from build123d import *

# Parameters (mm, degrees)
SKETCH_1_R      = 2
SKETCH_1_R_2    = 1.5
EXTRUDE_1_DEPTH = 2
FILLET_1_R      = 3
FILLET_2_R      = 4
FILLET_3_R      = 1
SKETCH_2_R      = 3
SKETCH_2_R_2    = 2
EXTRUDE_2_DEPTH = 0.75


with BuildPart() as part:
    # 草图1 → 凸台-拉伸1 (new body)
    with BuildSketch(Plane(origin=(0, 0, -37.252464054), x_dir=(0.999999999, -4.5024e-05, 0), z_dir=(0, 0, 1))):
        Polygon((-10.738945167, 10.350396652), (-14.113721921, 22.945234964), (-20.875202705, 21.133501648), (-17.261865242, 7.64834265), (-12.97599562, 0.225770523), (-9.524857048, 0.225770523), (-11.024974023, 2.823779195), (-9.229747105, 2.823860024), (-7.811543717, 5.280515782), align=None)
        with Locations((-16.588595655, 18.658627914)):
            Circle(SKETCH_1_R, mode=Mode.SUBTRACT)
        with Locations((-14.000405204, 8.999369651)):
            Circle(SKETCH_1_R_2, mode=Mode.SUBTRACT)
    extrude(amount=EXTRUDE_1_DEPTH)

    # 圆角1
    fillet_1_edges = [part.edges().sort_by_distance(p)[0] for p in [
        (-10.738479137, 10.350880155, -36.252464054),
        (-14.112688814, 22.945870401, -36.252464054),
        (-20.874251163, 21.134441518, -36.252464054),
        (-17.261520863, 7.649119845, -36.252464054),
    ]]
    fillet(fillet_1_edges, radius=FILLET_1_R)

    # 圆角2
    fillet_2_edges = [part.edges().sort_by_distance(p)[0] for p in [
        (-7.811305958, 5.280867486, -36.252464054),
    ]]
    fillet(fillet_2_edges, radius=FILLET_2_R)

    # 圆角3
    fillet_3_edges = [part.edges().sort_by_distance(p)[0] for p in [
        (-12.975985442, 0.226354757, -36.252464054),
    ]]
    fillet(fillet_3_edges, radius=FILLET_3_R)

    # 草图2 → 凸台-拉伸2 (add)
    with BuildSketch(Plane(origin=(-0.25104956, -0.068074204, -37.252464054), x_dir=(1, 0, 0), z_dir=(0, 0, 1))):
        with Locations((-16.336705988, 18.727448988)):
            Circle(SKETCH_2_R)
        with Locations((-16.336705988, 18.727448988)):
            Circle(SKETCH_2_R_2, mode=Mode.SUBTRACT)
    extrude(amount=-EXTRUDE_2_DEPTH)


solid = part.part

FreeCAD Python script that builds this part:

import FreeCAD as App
import Part
import Sketcher

V = App.Vector
Q = App.Units.Quantity


def edges_at(feature, points):
    """Names of the edges that pass closest to the given points."""
    edges = feature.Shape.Edges
    near = lambda p: min(range(len(edges)), key=lambda i: edges[i].distToShape(Part.Vertex(*p))[0])
    return sorted({f"Edge{near(p) + 1}" for p in points})


def add_polygon(sketch, points):
    """Adds a closed chain of lines whose ends are joined by coincident constraints."""
    first, n = sketch.GeometryCount, len(points)
    for a, b in zip(points, points[1:] + points[:1]):
        sketch.addGeometry(Part.LineSegment(App.Vector(*a, 0), App.Vector(*b, 0)), False)
    for i in range(n):
        sketch.addConstraint(Sketcher.Constraint("Coincident", first + i, 2, first + (i + 1) % n, 1))

doc = App.newDocument("Part")
params = doc.addObject("Spreadsheet::Sheet", "Params")
for row, (alias, value) in enumerate([
    ("sketch1_diameter", "3 mm"),
    ("sketch1_diameter2", "4 mm"),
    ("sketch1_length", "7 mm"),
    ("sketch1_length2", "3 mm"),
    ("pad1_length", "2 mm"),
    ("fillet_radius", "3 mm"),
    ("fillet2_radius", "4 mm"),
    ("fillet3_radius", "1 mm"),
    ("sketch2_diameter", "6 mm"),
    ("sketch2_diameter2", "4 mm"),
    ("pad2_length", "0.75 mm"),
], start=1):
    params.set(f"A{row}", alias)
    params.set(f"B{row}", "=" + value)
    params.setAlias(f"B{row}", alias)

body = doc.addObject("PartDesign::Body", "Body")

sketch1 = body.newObject("Sketcher::SketchObject", "Sketch")
sketch1.AttachmentSupport = (doc.getObject("XY_Plane"), [""])
sketch1.MapMode = "FlatFace"
sketch1.AttachmentOffset = App.Placement(V(0, 0, -37.252464), App.Rotation())
add_polygon(sketch1, [(-10.738479, 10.35088), (-14.112689, 22.94587), (-20.874251, 21.134442), (-17.261521, 7.64912), (-12.975985, 0.226355), (-9.524847, 0.226199), (-11.024847, 2.824276), (-9.22962, 2.824276), (-7.811306, 5.280867)])
sketch1.addGeometry(Part.Circle(V(-14, 9, 0), V(0, 0, 1), 1.5), False)
sketch1.addGeometry(Part.Circle(V(-16.587756, 18.659375, 0), V(0, 0, 1), 2), False)
sketch1.addConstraint([
    Sketcher.Constraint("Horizontal", 6),
    Sketcher.Constraint("Perpendicular", 0, 1),
    Sketcher.Constraint("Perpendicular", 1, 2),
    Sketcher.Constraint("Parallel", 3, 5),
    Sketcher.Constraint("Parallel", 5, 8),
    Sketcher.Constraint("Diameter", 9, Q("3 mm")),
    Sketcher.Constraint("Diameter", 10, Q("4 mm")),
    Sketcher.Constraint("Angle", 3, Q("-60 deg")),
    Sketcher.Constraint("Angle", 7, Q("60 deg")),
    Sketcher.Constraint("Distance", 1, Q("7 mm")),
    Sketcher.Constraint("Distance", 5, Q("3 mm")),
    Sketcher.Constraint("DistanceX", 9, 3, -1, 1, Q("14 mm")),
    Sketcher.Constraint("DistanceY", -1, 1, 9, 3, Q("9 mm")),
    Sketcher.Constraint("DistanceY", -1, 1, 4, 2, Q("0.226199 mm")),
    Sketcher.Constraint("DistanceY", 5, 2, 10, 3, Q("15.835099 mm")),
    Sketcher.Constraint("DistanceX", 2, 2, 6, 2, Q("8.031901 mm")),
    Sketcher.Constraint("Distance", 3, Q("8.571071 mm")),
    Sketcher.Constraint("Distance", 4, Q("3.451139 mm")),
    Sketcher.Constraint("DistanceX", 0, 2, -1, 1, Q("14.112689 mm")),
    Sketcher.Constraint("DistanceY", -1, 1, 0, 2, Q("22.94587 mm")),
    Sketcher.Constraint("DistanceX", 1, 2, -1, 1, Q("20.874251 mm")),
    Sketcher.Constraint("DistanceX", 2, 2, -1, 1, Q("17.261521 mm")),
    Sketcher.Constraint("DistanceX", 8, 2, -1, 1, Q("10.738479 mm")),
    Sketcher.Constraint("DistanceX", 10, 3, 3, 2, Q("3.61177 mm")),
])
sketch1.setExpression("Constraints[14]", "Params.sketch1_diameter")
sketch1.setExpression("Constraints[15]", "Params.sketch1_diameter2")
sketch1.setExpression("Constraints[18]", "Params.sketch1_length")
sketch1.setExpression("Constraints[19]", "Params.sketch1_length2")
pad1 = body.newObject("PartDesign::Pad", "Pad")
pad1.Profile = sketch1
pad1.setExpression("Length", "Params.pad1_length")
doc.recompute()

fillet = body.newObject("PartDesign::Fillet", "Fillet")
fillet.Base = (pad1, edges_at(pad1, [
    (-10.738, 10.351, -36.252),
    (-14.113, 22.946, -36.252),
    (-20.874, 21.134, -36.252),
    (-17.262, 7.649, -36.252),
]))
fillet.setExpression("Radius", "Params.fillet_radius")
doc.recompute()

fillet2 = body.newObject("PartDesign::Fillet", "Fillet001")
fillet2.Base = (fillet, edges_at(fillet, [(-7.811, 5.281, -36.252)]))
fillet2.setExpression("Radius", "Params.fillet2_radius")
doc.recompute()

fillet3 = body.newObject("PartDesign::Fillet", "Fillet002")
fillet3.Base = (fillet2, edges_at(fillet2, [(-12.976, 0.226, -36.252)]))
fillet3.setExpression("Radius", "Params.fillet3_radius")

sketch2 = body.newObject("Sketcher::SketchObject", "Sketch001")
sketch2.AttachmentSupport = (doc.getObject("XY_Plane"), [""])
sketch2.MapMode = "FlatFace"
sketch2.AttachmentOffset = App.Placement(V(0, 0, -37.252464), App.Rotation())
sketch2.addGeometry([
    Part.Circle(V(-16.587756, 18.659375, 0), V(0, 0, 1), 3),
    Part.Circle(V(-16.587756, 18.659375, 0), V(0, 0, 1), 2),
], False)
sketch2.addConstraint([
    Sketcher.Constraint("Coincident", 1, 3, 0, 3),
    Sketcher.Constraint("Diameter", 0, Q("6 mm")),
    Sketcher.Constraint("Diameter", 1, Q("4 mm")),
    Sketcher.Constraint("DistanceX", 0, 3, -1, 1, Q("16.587756 mm")),
    Sketcher.Constraint("DistanceY", -1, 1, 0, 3, Q("18.659375 mm")),
])
sketch2.setExpression("Constraints[1]", "Params.sketch2_diameter")
sketch2.setExpression("Constraints[2]", "Params.sketch2_diameter2")
pad2 = body.newObject("PartDesign::Pad", "Pad001")
pad2.Profile = sketch2
pad2.setExpression("Length", "Params.pad2_length")
pad2.Reversed = True

doc.recompute()
